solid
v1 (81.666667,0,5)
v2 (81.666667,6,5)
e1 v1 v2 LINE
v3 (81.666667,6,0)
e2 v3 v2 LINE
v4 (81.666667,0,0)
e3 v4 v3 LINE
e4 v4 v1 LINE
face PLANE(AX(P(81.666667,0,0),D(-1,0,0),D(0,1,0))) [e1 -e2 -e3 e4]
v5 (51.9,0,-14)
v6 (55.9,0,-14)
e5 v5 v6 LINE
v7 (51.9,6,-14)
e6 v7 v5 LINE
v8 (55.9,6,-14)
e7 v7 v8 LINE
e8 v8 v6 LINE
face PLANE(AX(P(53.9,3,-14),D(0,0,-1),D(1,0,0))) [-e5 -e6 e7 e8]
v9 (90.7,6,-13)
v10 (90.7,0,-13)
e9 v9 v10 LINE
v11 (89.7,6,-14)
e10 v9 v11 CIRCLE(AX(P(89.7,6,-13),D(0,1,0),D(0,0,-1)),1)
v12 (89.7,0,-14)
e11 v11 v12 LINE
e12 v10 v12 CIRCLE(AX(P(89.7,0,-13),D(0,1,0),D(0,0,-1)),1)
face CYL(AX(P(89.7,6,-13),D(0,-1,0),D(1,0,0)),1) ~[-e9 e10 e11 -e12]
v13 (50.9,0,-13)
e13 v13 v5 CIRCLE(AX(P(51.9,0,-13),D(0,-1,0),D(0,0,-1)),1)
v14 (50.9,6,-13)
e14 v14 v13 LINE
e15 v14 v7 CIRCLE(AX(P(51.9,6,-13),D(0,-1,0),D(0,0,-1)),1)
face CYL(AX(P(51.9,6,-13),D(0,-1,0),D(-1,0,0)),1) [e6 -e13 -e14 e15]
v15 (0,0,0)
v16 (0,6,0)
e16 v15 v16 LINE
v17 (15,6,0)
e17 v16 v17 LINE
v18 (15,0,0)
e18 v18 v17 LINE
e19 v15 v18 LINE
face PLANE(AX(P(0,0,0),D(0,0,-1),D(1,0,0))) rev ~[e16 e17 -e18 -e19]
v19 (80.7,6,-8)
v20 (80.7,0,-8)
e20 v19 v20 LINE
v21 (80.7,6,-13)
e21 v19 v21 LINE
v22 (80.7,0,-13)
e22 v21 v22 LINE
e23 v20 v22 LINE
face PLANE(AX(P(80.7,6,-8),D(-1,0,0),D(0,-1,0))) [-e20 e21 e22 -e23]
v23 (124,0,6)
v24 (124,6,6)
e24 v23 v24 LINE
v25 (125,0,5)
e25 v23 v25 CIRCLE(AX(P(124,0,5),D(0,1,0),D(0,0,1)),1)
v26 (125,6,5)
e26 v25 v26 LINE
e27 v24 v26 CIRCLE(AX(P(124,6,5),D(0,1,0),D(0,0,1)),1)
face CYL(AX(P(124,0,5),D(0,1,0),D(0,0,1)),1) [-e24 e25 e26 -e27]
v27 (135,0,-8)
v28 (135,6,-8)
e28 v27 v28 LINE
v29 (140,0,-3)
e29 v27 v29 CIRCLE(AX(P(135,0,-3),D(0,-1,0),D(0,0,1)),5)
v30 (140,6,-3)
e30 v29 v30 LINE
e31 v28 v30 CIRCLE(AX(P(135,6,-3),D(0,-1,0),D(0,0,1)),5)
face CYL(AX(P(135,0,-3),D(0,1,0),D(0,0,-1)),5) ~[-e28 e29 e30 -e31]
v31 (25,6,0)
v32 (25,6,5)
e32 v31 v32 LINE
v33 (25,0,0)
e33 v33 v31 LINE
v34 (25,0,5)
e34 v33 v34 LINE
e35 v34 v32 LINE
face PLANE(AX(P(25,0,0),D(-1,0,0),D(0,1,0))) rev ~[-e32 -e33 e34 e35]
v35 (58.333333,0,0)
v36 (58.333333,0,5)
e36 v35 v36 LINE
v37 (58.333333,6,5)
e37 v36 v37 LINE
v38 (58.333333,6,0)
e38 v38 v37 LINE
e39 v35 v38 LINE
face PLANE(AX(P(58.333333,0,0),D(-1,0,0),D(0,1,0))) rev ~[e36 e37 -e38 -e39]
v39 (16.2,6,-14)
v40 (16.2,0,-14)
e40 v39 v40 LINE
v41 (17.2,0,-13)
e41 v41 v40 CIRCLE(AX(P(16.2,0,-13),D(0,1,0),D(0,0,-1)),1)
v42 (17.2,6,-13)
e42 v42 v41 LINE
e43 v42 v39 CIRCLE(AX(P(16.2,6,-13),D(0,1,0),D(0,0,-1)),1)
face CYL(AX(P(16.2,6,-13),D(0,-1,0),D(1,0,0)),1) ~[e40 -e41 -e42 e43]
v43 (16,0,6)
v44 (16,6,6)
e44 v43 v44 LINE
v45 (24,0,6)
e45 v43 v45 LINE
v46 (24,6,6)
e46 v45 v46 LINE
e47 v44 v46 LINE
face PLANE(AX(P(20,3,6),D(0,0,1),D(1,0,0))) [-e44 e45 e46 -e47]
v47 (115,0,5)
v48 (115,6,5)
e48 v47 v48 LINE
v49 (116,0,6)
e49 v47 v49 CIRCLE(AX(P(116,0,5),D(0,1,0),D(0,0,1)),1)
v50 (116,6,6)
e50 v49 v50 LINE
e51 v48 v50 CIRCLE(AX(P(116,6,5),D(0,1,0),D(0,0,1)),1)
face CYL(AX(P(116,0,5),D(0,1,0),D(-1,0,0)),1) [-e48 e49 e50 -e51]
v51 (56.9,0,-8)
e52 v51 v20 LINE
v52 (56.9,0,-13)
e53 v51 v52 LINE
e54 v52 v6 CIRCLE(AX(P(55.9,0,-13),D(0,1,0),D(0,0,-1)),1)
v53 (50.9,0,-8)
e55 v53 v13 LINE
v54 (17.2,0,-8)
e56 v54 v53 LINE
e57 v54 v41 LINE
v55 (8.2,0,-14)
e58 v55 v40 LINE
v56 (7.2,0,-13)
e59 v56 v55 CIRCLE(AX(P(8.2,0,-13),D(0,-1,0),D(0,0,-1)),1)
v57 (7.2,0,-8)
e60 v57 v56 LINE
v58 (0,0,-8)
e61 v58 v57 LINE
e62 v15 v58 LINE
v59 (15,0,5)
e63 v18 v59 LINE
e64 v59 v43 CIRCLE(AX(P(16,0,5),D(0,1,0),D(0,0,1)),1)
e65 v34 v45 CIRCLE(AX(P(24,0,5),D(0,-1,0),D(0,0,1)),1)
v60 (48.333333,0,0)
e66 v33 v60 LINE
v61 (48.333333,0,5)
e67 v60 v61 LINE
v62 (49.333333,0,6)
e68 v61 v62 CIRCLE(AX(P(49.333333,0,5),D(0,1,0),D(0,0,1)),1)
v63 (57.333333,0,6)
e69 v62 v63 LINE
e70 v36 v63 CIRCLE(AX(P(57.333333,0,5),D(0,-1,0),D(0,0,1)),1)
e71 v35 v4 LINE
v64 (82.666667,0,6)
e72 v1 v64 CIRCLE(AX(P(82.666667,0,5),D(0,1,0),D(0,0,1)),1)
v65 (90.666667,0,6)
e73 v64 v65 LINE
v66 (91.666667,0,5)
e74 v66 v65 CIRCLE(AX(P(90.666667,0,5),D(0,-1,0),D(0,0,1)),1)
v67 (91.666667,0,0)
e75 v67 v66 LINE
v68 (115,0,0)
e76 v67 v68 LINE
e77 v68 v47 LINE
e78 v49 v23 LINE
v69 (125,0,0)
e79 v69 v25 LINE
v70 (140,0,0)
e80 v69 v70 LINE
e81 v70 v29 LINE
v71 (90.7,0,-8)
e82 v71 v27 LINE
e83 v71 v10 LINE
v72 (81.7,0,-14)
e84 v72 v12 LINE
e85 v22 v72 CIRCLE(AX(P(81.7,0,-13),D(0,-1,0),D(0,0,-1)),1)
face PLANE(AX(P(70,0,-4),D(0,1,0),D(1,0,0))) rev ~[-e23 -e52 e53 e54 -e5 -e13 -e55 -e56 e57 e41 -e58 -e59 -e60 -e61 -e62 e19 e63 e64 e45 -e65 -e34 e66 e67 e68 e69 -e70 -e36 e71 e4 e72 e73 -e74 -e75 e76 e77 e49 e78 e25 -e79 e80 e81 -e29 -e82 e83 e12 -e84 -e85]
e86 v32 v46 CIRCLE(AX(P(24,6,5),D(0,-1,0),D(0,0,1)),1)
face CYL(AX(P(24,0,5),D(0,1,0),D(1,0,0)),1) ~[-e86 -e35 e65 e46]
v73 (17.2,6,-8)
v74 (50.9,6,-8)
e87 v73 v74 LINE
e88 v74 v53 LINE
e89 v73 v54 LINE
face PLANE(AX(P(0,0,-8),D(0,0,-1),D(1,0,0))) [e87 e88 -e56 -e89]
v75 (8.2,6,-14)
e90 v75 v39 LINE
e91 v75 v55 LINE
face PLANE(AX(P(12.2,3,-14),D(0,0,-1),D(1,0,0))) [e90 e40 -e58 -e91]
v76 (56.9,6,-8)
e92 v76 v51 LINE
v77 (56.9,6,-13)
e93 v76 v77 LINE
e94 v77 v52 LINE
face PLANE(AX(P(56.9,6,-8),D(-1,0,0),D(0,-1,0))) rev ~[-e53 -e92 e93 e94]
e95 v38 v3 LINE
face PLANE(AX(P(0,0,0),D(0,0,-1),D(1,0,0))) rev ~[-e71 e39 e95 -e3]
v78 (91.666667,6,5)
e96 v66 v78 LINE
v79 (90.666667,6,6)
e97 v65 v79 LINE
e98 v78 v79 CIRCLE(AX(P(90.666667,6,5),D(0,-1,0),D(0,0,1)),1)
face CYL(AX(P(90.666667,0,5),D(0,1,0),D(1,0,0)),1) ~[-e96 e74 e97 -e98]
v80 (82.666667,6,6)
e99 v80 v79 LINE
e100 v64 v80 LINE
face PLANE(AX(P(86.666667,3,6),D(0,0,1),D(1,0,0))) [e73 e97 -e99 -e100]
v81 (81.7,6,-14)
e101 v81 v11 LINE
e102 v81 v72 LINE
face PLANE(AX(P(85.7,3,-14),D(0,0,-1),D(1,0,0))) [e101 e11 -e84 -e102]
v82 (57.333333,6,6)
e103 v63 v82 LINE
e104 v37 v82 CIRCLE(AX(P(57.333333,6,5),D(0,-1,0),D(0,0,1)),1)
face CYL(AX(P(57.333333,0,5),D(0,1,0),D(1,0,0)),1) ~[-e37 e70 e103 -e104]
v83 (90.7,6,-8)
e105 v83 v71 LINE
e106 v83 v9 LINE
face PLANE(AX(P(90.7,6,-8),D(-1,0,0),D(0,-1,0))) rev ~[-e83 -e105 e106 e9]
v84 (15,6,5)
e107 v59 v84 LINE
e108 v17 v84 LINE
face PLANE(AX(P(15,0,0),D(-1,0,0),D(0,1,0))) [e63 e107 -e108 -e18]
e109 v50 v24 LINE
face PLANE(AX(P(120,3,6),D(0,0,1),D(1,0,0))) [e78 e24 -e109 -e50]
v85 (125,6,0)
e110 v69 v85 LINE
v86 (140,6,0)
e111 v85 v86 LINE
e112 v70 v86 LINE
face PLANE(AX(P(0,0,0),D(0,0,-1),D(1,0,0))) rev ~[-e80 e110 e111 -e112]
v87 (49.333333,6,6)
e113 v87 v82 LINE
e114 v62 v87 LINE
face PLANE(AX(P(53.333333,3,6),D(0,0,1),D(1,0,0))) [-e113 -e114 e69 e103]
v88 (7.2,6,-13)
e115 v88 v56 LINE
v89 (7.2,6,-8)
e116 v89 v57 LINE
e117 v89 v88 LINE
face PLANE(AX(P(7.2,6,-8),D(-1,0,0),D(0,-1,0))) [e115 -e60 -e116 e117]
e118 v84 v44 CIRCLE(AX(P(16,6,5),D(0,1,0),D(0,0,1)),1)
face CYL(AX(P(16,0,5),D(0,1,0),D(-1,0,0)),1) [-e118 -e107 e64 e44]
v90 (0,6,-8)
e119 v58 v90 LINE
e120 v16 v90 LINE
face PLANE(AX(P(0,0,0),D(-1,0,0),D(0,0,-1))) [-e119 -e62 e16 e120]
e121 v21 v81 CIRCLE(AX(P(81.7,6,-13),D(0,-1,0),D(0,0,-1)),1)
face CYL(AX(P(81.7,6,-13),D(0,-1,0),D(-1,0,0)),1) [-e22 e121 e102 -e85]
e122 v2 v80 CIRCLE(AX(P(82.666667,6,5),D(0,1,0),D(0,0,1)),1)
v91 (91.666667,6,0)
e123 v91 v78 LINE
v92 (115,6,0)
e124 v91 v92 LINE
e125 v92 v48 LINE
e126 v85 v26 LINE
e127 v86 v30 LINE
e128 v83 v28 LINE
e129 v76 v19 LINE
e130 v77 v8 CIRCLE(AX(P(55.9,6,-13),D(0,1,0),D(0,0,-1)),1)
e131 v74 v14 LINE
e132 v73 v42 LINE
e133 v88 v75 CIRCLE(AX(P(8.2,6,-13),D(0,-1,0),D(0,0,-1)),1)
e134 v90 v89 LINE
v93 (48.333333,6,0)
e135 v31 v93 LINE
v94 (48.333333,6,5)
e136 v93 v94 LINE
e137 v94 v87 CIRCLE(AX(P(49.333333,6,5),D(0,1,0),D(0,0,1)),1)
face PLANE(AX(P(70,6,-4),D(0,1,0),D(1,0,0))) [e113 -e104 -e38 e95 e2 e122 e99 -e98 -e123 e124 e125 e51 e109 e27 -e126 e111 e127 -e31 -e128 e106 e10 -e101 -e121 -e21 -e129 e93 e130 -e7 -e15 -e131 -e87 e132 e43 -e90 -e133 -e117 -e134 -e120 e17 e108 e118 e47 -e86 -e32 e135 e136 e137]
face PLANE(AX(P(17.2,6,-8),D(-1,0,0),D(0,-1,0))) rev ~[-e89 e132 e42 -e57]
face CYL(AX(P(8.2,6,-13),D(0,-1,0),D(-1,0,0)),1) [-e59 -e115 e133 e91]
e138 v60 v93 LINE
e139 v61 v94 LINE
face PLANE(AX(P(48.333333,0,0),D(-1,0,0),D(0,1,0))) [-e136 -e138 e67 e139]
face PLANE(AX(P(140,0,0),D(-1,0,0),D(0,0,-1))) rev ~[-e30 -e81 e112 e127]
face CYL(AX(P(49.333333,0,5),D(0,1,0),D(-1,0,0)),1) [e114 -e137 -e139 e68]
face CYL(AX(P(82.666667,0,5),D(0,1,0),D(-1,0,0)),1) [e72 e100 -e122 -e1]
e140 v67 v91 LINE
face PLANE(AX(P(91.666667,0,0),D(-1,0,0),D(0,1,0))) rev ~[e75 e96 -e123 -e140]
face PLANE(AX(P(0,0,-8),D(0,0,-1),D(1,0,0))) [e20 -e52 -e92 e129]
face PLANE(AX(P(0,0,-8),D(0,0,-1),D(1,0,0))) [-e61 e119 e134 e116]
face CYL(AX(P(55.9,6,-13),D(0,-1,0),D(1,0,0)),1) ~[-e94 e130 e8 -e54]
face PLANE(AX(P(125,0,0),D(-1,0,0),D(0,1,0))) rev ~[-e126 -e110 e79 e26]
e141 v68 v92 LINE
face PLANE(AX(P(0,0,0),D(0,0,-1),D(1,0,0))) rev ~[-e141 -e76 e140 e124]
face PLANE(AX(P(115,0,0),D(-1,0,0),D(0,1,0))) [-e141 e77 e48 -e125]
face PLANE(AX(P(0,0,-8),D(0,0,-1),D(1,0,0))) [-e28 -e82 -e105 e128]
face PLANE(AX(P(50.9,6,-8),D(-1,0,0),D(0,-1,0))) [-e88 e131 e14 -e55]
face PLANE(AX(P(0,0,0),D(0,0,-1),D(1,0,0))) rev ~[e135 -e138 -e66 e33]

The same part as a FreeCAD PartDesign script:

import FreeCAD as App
import Part
import Sketcher
from FreeCAD import Vector
Q = App.Units.Quantity


def edges_at(feature, points):
    """Names of the edges that pass closest to the given points."""
    edges = feature.Shape.Edges
    near = lambda p: min(range(len(edges)), key=lambda i: edges[i].distToShape(Part.Vertex(*p))[0])
    return sorted({f"Edge{near(p) + 1}" for p in points})

doc = App.newDocument("Part")
body = doc.addObject("PartDesign::Body", "Body")

# Sketch on XZ plane
sketch1 = doc.addObject("Sketcher::SketchObject", "Sketch")
body.addObject(sketch1)
sketch1.AttachmentSupport = (doc.XZ_Plane, [""])
sketch1.MapMode = "FlatFace"
sketch1.addGeometry([
    Part.LineSegment(Vector(0, -8, 0), Vector(0, 0, 0)),
    Part.LineSegment(Vector(0, 0, 0), Vector(140, 0, 0)),
    Part.LineSegment(Vector(140, 0, 0), Vector(140, -8, 0)),
    Part.LineSegment(Vector(140, -8, 0), Vector(0, -8, 0)),
], False)
sketch1.addConstraint([
    Sketcher.Constraint("Coincident", 0, 2, 1, 1),
    Sketcher.Constraint("Coincident", 1, 2, 2, 1),
    Sketcher.Constraint("Coincident", 2, 2, 3, 1),
    Sketcher.Constraint("Coincident", 3, 2, 0, 1),
    Sketcher.Constraint("Vertical", 0),
    Sketcher.Constraint("Horizontal", 1),
    Sketcher.Constraint("Vertical", 2),
    Sketcher.Constraint("Horizontal", 3),
    Sketcher.Constraint("Coincident", 0, 2, -1, 1),
    Sketcher.Constraint("DistanceX", 1, 1, 1, 2, Q("140 mm")),
    Sketcher.Constraint("DistanceY", 0, 1, 0, 2, Q("8 mm")),
])
pad1 = doc.addObject("PartDesign::Pad", "Pad")
body.addObject(pad1)
pad1.Profile = sketch1
pad1.Length = 6
pad1.Reversed = True

# Sketch on XY plane
sketch2 = doc.addObject("Sketcher::SketchObject", "Sketch001")
body.addObject(sketch2)
sketch2.AttachmentSupport = (doc.XY_Plane, [""])
sketch2.MapMode = "FlatFace"
sketch2.addGeometry([
    Part.LineSegment(Vector(115, 6, 0), Vector(115, 0, 0)),
    Part.LineSegment(Vector(115, 0, 0), Vector(125, 0, 0)),
    Part.LineSegment(Vector(125, 0, 0), Vector(125, 6, 0)),
    Part.LineSegment(Vector(125, 6, 0), Vector(115, 6, 0)),
], False)
sketch2.addConstraint([
    Sketcher.Constraint("Coincident", 0, 2, 1, 1),
    Sketcher.Constraint("Coincident", 1, 2, 2, 1),
    Sketcher.Constraint("Coincident", 2, 2, 3, 1),
    Sketcher.Constraint("Coincident", 3, 2, 0, 1),
    Sketcher.Constraint("Vertical", 0),
    Sketcher.Constraint("Horizontal", 1),
    Sketcher.Constraint("Vertical", 2),
    Sketcher.Constraint("Horizontal", 3),
    Sketcher.Constraint("PointOnObject", 0, 2, -1),
    Sketcher.Constraint("DistanceX", 1, 1, 1, 2, Q("10 mm")),
    Sketcher.Constraint("DistanceY", 0, 2, 0, 1, Q("6 mm")),
    Sketcher.Constraint("DistanceX", -1, 1, 0, 2, Q("115 mm")),
])
pad2 = doc.addObject("PartDesign::Pad", "Pad001")
body.addObject(pad2)
pad2.Profile = sketch2
pad2.Length = 6
doc.recompute()

fillet = doc.addObject("PartDesign::Fillet", "Fillet")
body.addObject(fillet)
fillet.Base = (pad2, edges_at(pad2, [(115, 3, 6), (125, 3, 6)]))
fillet.Radius = 1

# Sketch on XY plane
sketch3 = doc.addObject("Sketcher::SketchObject", "Sketch002")
body.addObject(sketch3)
sketch3.AttachmentSupport = (doc.XY_Plane, [""])
sketch3.MapMode = "FlatFace"
sketch3.addGeometry([
    Part.LineSegment(Vector(82, 6, 0), Vector(82, 0, 0)),
    Part.LineSegment(Vector(82, 0, 0), Vector(92, 0, 0)),
    Part.LineSegment(Vector(92, 0, 0), Vector(92, 6, 0)),
    Part.LineSegment(Vector(92, 6, 0), Vector(82, 6, 0)),
], False)
sketch3.addConstraint([
    Sketcher.Constraint("Coincident", 0, 2, 1, 1),
    Sketcher.Constraint("Coincident", 1, 2, 2, 1),
    Sketcher.Constraint("Coincident", 2, 2, 3, 1),
    Sketcher.Constraint("Coincident", 3, 2, 0, 1),
    Sketcher.Constraint("Vertical", 0),
    Sketcher.Constraint("Horizontal", 1),
    Sketcher.Constraint("Vertical", 2),
    Sketcher.Constraint("Horizontal", 3),
    Sketcher.Constraint("PointOnObject", 0, 2, -1),
    Sketcher.Constraint("DistanceX", 1, 1, 1, 2, Q("10 mm")),
    Sketcher.Constraint("DistanceY", 0, 2, 0, 1, Q("6 mm")),
    Sketcher.Constraint("DistanceX", -1, 1, 0, 2, Q("81.666667 mm")),
])
pad3 = doc.addObject("PartDesign::Pad", "Pad002")
body.addObject(pad3)
pad3.Profile = sketch3
pad3.Length = 6
doc.recompute()

fillet2 = doc.addObject("PartDesign::Fillet", "Fillet001")
body.addObject(fillet2)
fillet2.Base = (pad3, edges_at(pad3, [(91.667, 3, 6), (81.667, 3, 6)]))
fillet2.Radius = 1

# Sketch on XY plane
sketch4 = doc.addObject("Sketcher::SketchObject", "Sketch003")
body.addObject(sketch4)
sketch4.AttachmentSupport = (doc.XY_Plane, [""])
sketch4.MapMode = "FlatFace"
sketch4.addGeometry([
    Part.LineSegment(Vector(48, 6, 0), Vector(48, 0, 0)),
    Part.LineSegment(Vector(48, 0, 0), Vector(58, 0, 0)),
    Part.LineSegment(Vector(58, 0, 0), Vector(58, 6, 0)),
    Part.LineSegment(Vector(58, 6, 0), Vector(48, 6, 0)),
], False)
sketch4.addConstraint([
    Sketcher.Constraint("Coincident", 0, 2, 1, 1),
    Sketcher.Constraint("Coincident", 1, 2, 2, 1),
    Sketcher.Constraint("Coincident", 2, 2, 3, 1),
    Sketcher.Constraint("Coincident", 3, 2, 0, 1),
    Sketcher.Constraint("Vertical", 0),
    Sketcher.Constraint("Horizontal", 1),
    Sketcher.Constraint("Vertical", 2),
    Sketcher.Constraint("Horizontal", 3),
    Sketcher.Constraint("PointOnObject", 0, 2, -1),
    Sketcher.Constraint("DistanceX", 1, 1, 1, 2, Q("10 mm")),
    Sketcher.Constraint("DistanceY", 0, 2, 0, 1, Q("6 mm")),
    Sketcher.Constraint("DistanceX", -1, 1, 0, 2, Q("48.333333 mm")),
])
pad4 = doc.addObject("PartDesign::Pad", "Pad003")
body.addObject(pad4)
pad4.Profile = sketch4
pad4.Length = 6
doc.recompute()

fillet3 = doc.addObject("PartDesign::Fillet", "Fillet002")
body.addObject(fillet3)
fillet3.Base = (pad4, edges_at(pad4, [(58.333, 3, 6), (48.333, 3, 6)]))
fillet3.Radius = 1

# Sketch on XY plane
sketch5 = doc.addObject("Sketcher::SketchObject", "Sketch004")
body.addObject(sketch5)
sketch5.AttachmentSupport = (doc.XY_Plane, [""])
sketch5.MapMode = "FlatFace"
sketch5.addGeometry([
    Part.LineSegment(Vector(15, 6, 0), Vector(15, 0, 0)),
    Part.LineSegment(Vector(15, 0, 0), Vector(25, 0, 0)),
    Part.LineSegment(Vector(25, 0, 0), Vector(25, 6, 0)),
    Part.LineSegment(Vector(25, 6, 0), Vector(15, 6, 0)),
], False)
sketch5.addConstraint([
    Sketcher.Constraint("Coincident", 0, 2, 1, 1),
    Sketcher.Constraint("Coincident", 1, 2, 2, 1),
    Sketcher.Constraint("Coincident", 2, 2, 3, 1),
    Sketcher.Constraint("Coincident", 3, 2, 0, 1),
    Sketcher.Constraint("Vertical", 0),
    Sketcher.Constraint("Horizontal", 1),
    Sketcher.Constraint("Vertical", 2),
    Sketcher.Constraint("Horizontal", 3),
    Sketcher.Constraint("PointOnObject", 0, 2, -1),
    Sketcher.Constraint("DistanceX", 1, 1, 1, 2, Q("10 mm")),
    Sketcher.Constraint("DistanceY", 0, 2, 0, 1, Q("6 mm")),
    Sketcher.Constraint("DistanceX", -1, 1, 0, 2, Q("15 mm")),
])
pad5 = doc.addObject("PartDesign::Pad", "Pad004")
body.addObject(pad5)
pad5.Profile = sketch5
pad5.Length = 6
doc.recompute()

fillet4 = doc.addObject("PartDesign::Fillet", "Fillet003")
body.addObject(fillet4)
fillet4.Base = (pad5, edges_at(pad5, [(25, 3, 6), (15, 3, 6)]))
fillet4.Radius = 1

# Sketch on XY plane
sketch6 = doc.addObject("Sketcher::SketchObject", "Sketch005")
body.addObject(sketch6)
sketch6.AttachmentSupport = (doc.XY_Plane, [""])
sketch6.MapMode = "FlatFace"
sketch6.AttachmentOffset = App.Placement(Vector(0, 0, -8), App.Rotation())
sketch6.addGeometry([
    Part.LineSegment(Vector(81, 0, 0), Vector(81, 6, 0)),
    Part.LineSegment(Vector(81, 6, 0), Vector(91, 6, 0)),
    Part.LineSegment(Vector(91, 6, 0), Vector(91, 0, 0)),
    Part.LineSegment(Vector(91, 0, 0), Vector(81, 0, 0)),
], False)
sketch6.addConstraint([
    Sketcher.Constraint("Coincident", 0, 2, 1, 1),
    Sketcher.Constraint("Coincident", 1, 2, 2, 1),
    Sketcher.Constraint("Coincident", 2, 2, 3, 1),
    Sketcher.Constraint("Coincident", 3, 2, 0, 1),
    Sketcher.Constraint("Vertical", 0),
    Sketcher.Constraint("Horizontal", 1),
    Sketcher.Constraint("Vertical", 2),
    Sketcher.Constraint("Horizontal", 3),
    Sketcher.Constraint("PointOnObject", 2, 2, -1),
    Sketcher.Constraint("DistanceX", 1, 1, 1, 2, Q("10 mm")),
    Sketcher.Constraint("DistanceY", 0, 1, 0, 2, Q("6 mm")),
    Sketcher.Constraint("DistanceX", -1, 1, 0, 2, Q("80.7 mm")),
])
pad6 = doc.addObject("PartDesign::Pad", "Pad005")
body.addObject(pad6)
pad6.Profile = sketch6
pad6.Length = 6
pad6.Reversed = True
doc.recompute()

fillet5 = doc.addObject("PartDesign::Fillet", "Fillet004")
body.addObject(fillet5)
fillet5.Base = (pad6, edges_at(pad6, [(80.7, 3, -14), (90.7, 3, -14)]))
fillet5.Radius = 1

# Sketch on XY plane
sketch7 = doc.addObject("Sketcher::SketchObject", "Sketch006")
body.addObject(sketch7)
sketch7.AttachmentSupport = (doc.XY_Plane, [""])
sketch7.MapMode = "FlatFace"
sketch7.AttachmentOffset = App.Placement(Vector(0, 0, -8), App.Rotation())
sketch7.addGeometry([
    Part.LineSegment(Vector(7, 0, 0), Vector(7, 6, 0)),
    Part.LineSegment(Vector(7, 6, 0), Vector(17, 6, 0)),
    Part.LineSegment(Vector(17, 6, 0), Vector(17, 0, 0)),
    Part.LineSegment(Vector(17, 0, 0), Vector(7, 0, 0)),
], False)
sketch7.addConstraint([
    Sketcher.Constraint("Coincident", 0, 2, 1, 1),
    Sketcher.Constraint("Coincident", 1, 2, 2, 1),
    Sketcher.Constraint("Coincident", 2, 2, 3, 1),
    Sketcher.Constraint("Coincident", 3, 2, 0, 1),
    Sketcher.Constraint("Vertical", 0),
    Sketcher.Constraint("Horizontal", 1),
    Sketcher.Constraint("Vertical", 2),
    Sketcher.Constraint("Horizontal", 3),
    Sketcher.Constraint("PointOnObject", 2, 2, -1),
    Sketcher.Constraint("DistanceX", 1, 1, 1, 2, Q("10 mm")),
    Sketcher.Constraint("DistanceY", 0, 1, 0, 2, Q("6 mm")),
    Sketcher.Constraint("DistanceX", -1, 1, 0, 2, Q("7.2 mm")),
])
pad7 = doc.addObject("PartDesign::Pad", "Pad006")
body.addObject(pad7)
pad7.Profile = sketch7
pad7.Length = 6
pad7.Reversed = True
doc.recompute()

fillet6 = doc.addObject("PartDesign::Fillet", "Fillet005")
body.addObject(fillet6)
fillet6.Base = (pad7, edges_at(pad7, [(17.2, 3, -14), (7.2, 3, -14)]))
fillet6.Radius = 1
doc.recompute()

fillet7 = doc.addObject("PartDesign::Fillet", "Fillet006")
body.addObject(fillet7)
fillet7.Base = (fillet6, edges_at(fillet6, [(140, 3, -8)]))
fillet7.Radius = 5

# Sketch on XY plane
sketch8 = doc.addObject("Sketcher::SketchObject", "Sketch007")
body.addObject(sketch8)
sketch8.AttachmentSupport = (doc.XY_Plane, [""])
sketch8.MapMode = "FlatFace"
sketch8.AttachmentOffset = App.Placement(Vector(0, 0, -8), App.Rotation())
sketch8.addGeometry([
    Part.LineSegment(Vector(51, 0, 0), Vector(51, 6, 0)),
    Part.LineSegment(Vector(51, 6, 0), Vector(57, 6, 0)),
    Part.LineSegment(Vector(57, 6, 0), Vector(57, 0, 0)),
    Part.LineSegment(Vector(57, 0, 0), Vector(51, 0, 0)),
], False)
sketch8.addConstraint([
    Sketcher.Constraint("Coincident", 0, 2, 1, 1),
    Sketcher.Constraint("Coincident", 1, 2, 2, 1),
    Sketcher.Constraint("Coincident", 2, 2, 3, 1),
    Sketcher.Constraint("Coincident", 3, 2, 0, 1),
    Sketcher.Constraint("Vertical", 0),
    Sketcher.Constraint("Horizontal", 1),
    Sketcher.Constraint("Vertical", 2),
    Sketcher.Constraint("Horizontal", 3),
    Sketcher.Constraint("PointOnObject", 2, 2, -1),
    Sketcher.Constraint("Equal", 3, 0),
    Sketcher.Constraint("DistanceX", 1, 1, 1, 2, Q("6 mm")),
    Sketcher.Constraint("DistanceX", -1, 1, 0, 2, Q("50.9 mm")),
])
pad8 = doc.addObject("PartDesign::Pad", "Pad007")
body.addObject(pad8)
pad8.Profile = sketch8
pad8.Length = 6
pad8.Reversed = True
doc.recompute()

fillet8 = doc.addObject("PartDesign::Fillet", "Fillet007")
body.addObject(fillet8)
fillet8.Base = (pad8, edges_at(pad8, [(56.9, 3, -14), (50.9, 3, -14)]))
fillet8.Radius = 1

doc.recompute()
